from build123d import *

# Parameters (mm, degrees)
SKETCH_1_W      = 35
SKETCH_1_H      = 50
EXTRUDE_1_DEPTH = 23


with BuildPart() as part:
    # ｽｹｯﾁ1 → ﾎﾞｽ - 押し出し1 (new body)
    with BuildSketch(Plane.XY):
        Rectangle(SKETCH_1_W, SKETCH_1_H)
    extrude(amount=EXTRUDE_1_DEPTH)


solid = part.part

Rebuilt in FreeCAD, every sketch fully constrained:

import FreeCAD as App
import Part
import Sketcher


def add_polygon(sketch, points):
    """Adds a closed chain of lines whose ends are joined by coincident constraints."""
    first, n = sketch.GeometryCount, len(points)
    for a, b in zip(points, points[1:] + points[:1]):
        sketch.addGeometry(Part.LineSegment(App.Vector(*a, 0), App.Vector(*b, 0)), False)
    for i in range(n):
        sketch.addConstraint(Sketcher.Constraint("Coincident", first + i, 2, first + (i + 1) % n, 1))

doc = App.newDocument("Part")
params = doc.addObject("Spreadsheet::Sheet", "Params")
for row, (alias, value) in enumerate([
    ("sketch1_width", "35 mm"),
    ("sketch1_height", "50 mm"),
    ("pad1_length", "23 mm"),
], start=1):
    params.set(f"A{row}", alias)
    params.set(f"B{row}", "=" + value)
    params.setAlias(f"B{row}", alias)

body = doc.addObject("PartDesign::Body", "Body")

sketch1 = body.newObject("Sketcher::SketchObject", "Sketch")
sketch1.AttachmentSupport = (doc.getObject("XY_Plane"), [""])
sketch1.MapMode = "FlatFace"
add_polygon(sketch1, [(-17.5, 25), (-17.5, -25), (17.5, -25), (17.5, 25)])
sketch1.addConstraint(Sketcher.Constraint("Vertical", 0))
sketch1.addConstraint(Sketcher.Constraint("Horizontal", 1))
sketch1.addConstraint(Sketcher.Constraint("Vertical", 2))
sketch1.addConstraint(Sketcher.Constraint("Horizontal", 3))
sketch1.addConstraint(Sketcher.Constraint("Symmetric", 0, 2, 2, 2, -1, 1))
sketch1.addConstraint(Sketcher.Constraint("DistanceX", 1, 1, 1, 2, 35.0))
sketch1.addConstraint(Sketcher.Constraint("DistanceY", 0, 2, 0, 1, 50.0))
sketch1.setExpression("Constraints[9]", "Params.sketch1_width")
sketch1.setExpression("Constraints[10]", "Params.sketch1_height")
pad1 = body.newObject("PartDesign::Pad", "Pad")
pad1.Profile = sketch1
pad1.setExpression("Length", "Params.pad1_length")

doc.recompute()
